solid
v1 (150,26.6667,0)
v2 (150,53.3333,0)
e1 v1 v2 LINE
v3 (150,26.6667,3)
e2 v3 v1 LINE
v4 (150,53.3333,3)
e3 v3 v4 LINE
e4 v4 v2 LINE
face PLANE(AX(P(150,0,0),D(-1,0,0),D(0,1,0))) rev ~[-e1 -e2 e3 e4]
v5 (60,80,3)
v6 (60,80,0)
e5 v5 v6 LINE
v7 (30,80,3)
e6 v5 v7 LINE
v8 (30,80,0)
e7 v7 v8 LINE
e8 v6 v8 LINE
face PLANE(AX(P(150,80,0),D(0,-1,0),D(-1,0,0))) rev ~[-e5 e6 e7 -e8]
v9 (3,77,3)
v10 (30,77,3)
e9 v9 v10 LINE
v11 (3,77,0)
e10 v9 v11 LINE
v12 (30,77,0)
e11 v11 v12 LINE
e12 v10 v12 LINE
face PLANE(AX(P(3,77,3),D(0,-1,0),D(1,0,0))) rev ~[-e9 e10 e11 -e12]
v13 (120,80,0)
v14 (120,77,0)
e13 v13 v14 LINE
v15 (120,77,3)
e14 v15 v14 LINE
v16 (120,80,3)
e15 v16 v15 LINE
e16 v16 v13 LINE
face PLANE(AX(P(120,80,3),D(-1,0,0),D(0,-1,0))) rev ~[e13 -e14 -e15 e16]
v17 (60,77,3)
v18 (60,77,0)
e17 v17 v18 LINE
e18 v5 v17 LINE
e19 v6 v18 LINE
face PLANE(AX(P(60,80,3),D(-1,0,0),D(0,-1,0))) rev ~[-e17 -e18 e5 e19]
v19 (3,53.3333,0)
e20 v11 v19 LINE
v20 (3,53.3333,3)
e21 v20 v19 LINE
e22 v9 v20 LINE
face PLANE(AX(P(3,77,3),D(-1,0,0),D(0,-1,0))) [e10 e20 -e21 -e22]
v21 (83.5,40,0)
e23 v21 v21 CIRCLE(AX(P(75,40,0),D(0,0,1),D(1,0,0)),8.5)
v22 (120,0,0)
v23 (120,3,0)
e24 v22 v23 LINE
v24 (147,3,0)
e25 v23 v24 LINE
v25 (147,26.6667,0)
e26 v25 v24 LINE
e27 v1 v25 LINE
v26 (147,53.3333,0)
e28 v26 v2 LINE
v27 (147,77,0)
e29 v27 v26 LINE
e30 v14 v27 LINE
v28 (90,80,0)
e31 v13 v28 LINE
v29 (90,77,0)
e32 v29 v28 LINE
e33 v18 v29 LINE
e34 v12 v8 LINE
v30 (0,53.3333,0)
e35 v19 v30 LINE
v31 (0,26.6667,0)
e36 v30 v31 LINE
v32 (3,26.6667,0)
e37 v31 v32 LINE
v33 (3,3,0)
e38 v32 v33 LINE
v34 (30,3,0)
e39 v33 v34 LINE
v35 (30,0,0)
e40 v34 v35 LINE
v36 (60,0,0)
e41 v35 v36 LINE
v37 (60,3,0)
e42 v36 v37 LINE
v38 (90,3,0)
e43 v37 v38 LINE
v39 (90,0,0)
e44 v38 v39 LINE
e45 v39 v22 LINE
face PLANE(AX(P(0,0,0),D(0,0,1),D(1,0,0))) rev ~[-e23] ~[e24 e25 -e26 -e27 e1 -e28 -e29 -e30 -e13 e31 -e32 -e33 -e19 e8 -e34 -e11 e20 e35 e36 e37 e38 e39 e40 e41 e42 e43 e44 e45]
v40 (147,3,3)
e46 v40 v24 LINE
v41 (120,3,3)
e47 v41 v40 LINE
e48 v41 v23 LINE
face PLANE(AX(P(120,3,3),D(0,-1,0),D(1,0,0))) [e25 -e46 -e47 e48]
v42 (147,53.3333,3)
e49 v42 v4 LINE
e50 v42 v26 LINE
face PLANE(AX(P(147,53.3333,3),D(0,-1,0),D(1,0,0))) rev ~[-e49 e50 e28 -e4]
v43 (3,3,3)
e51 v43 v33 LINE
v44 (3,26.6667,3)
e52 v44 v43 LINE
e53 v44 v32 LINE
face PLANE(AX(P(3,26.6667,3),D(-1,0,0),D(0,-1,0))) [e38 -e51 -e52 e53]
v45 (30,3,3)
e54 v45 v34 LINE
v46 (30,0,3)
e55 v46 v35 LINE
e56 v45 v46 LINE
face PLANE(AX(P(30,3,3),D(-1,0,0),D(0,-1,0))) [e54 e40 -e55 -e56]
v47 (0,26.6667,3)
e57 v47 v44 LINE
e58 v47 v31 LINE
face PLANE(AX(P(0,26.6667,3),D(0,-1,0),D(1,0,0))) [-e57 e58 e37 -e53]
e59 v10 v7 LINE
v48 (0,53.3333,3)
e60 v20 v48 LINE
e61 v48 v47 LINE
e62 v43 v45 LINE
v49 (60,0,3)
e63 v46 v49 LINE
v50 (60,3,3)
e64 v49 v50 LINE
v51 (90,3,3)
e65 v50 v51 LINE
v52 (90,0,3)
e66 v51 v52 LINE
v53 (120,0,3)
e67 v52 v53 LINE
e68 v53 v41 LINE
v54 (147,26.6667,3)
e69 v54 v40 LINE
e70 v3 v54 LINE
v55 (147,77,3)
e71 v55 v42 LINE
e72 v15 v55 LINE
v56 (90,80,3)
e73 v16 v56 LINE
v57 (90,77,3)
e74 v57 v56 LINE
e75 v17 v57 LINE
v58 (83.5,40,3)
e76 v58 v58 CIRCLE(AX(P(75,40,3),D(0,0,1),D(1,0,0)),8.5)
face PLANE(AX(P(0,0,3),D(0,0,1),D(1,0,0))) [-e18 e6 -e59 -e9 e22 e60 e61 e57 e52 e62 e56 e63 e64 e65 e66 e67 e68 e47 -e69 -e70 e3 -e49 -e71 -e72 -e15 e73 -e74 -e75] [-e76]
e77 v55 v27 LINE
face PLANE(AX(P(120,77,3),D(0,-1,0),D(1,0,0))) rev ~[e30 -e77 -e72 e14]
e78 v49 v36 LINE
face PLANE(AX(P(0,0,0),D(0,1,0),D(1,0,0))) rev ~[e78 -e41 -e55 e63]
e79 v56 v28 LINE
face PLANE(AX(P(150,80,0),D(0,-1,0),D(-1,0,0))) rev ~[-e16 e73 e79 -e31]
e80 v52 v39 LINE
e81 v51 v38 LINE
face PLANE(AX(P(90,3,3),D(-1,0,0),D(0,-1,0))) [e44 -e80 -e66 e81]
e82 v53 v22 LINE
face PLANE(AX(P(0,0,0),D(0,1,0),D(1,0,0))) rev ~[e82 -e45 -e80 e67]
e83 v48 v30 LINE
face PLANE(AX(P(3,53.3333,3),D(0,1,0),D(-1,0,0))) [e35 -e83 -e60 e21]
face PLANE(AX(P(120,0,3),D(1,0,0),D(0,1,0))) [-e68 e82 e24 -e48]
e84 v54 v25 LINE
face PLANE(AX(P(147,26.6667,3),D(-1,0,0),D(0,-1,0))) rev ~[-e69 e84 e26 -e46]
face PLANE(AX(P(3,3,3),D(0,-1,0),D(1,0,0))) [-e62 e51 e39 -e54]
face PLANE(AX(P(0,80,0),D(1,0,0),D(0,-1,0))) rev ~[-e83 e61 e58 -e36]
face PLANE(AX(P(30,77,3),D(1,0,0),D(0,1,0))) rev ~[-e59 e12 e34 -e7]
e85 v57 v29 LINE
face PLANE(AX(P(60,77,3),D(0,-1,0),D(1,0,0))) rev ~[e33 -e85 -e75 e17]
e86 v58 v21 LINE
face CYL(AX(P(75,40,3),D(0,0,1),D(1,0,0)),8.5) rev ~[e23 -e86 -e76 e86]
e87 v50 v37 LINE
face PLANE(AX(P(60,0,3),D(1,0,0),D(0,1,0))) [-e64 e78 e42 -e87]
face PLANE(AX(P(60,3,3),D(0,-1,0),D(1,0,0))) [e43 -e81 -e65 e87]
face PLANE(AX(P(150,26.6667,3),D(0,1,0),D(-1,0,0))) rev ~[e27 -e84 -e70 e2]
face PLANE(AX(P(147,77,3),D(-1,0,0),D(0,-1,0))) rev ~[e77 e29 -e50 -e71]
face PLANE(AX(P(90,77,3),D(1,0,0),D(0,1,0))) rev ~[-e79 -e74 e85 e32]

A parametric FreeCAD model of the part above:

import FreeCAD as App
import Part
import Sketcher
from FreeCAD import Vector
Q = App.Units.Quantity

doc = App.newDocument("Part")
body = doc.addObject("PartDesign::Body", "Body")

# Sketch on XY plane
sketch1 = body.newObject("Sketcher::SketchObject", "Sketch")
sketch1.AttachmentSupport = (doc.getObject("XY_Plane"), [""])
sketch1.MapMode = "FlatFace"
sketch1.addGeometry([
    Part.LineSegment(Vector(0, 80, 0), Vector(0, 0, 0)),
    Part.LineSegment(Vector(0, 0, 0), Vector(150, 0, 0)),
    Part.LineSegment(Vector(150, 0, 0), Vector(150, 80, 0)),
    Part.LineSegment(Vector(150, 80, 0), Vector(0, 80, 0)),
], False)
sketch1.addConstraint([
    Sketcher.Constraint("Coincident", 0, 2, 1, 1),
    Sketcher.Constraint("Coincident", 1, 2, 2, 1),
    Sketcher.Constraint("Coincident", 2, 2, 3, 1),
    Sketcher.Constraint("Coincident", 3, 2, 0, 1),
    Sketcher.Constraint("Vertical", 0),
    Sketcher.Constraint("Horizontal", 1),
    Sketcher.Constraint("Vertical", 2),
    Sketcher.Constraint("Horizontal", 3),
    Sketcher.Constraint("Coincident", 0, 2, -1, 1),
    Sketcher.Constraint("DistanceX", 1, 1, 1, 2, Q("5.9055 in")),
    Sketcher.Constraint("DistanceY", 0, 2, 0, 1, Q("3.1496 in")),
])
pad1 = body.newObject("PartDesign::Pad", "Pad")
pad1.Profile = sketch1
pad1.Length = Q("0.1181102 in")

# Sketch on XY plane
sketch2 = body.newObject("Sketcher::SketchObject", "Sketch001")
sketch2.AttachmentSupport = (doc.getObject("XY_Plane"), [""])
sketch2.MapMode = "FlatFace"
sketch2.AttachmentOffset = App.Placement(Vector(0, 0, 0.1181102 * 25.4), App.Rotation())
sketch2.addGeometry([
    Part.LineSegment(Vector(0, 80, 0), Vector(0, 53.3333, 0)),  # 0
    Part.LineSegment(Vector(0, 53.3333, 0), Vector(3, 53.3333, 0)),  # 1
    Part.LineSegment(Vector(3, 53.3333, 0), Vector(3, 77, 0)),  # 2
    Part.LineSegment(Vector(3, 77, 0), Vector(30, 77, 0)),  # 3
    Part.LineSegment(Vector(30, 77, 0), Vector(30, 80, 0)),  # 4
    Part.LineSegment(Vector(30, 80, 0), Vector(0, 80, 0)),  # 5
    Part.LineSegment(Vector(3, 26.6667, 0), Vector(0, 26.6667, 0)),  # 6
    Part.LineSegment(Vector(0, 26.6667, 0), Vector(0, 0, 0)),  # 7
    Part.LineSegment(Vector(0, 0, 0), Vector(30, 0, 0)),  # 8
    Part.LineSegment(Vector(30, 0, 0), Vector(30, 3, 0)),  # 9
    Part.LineSegment(Vector(30, 3, 0), Vector(3, 3, 0)),  # 10
    Part.LineSegment(Vector(3, 3, 0), Vector(3, 26.6667, 0)),  # 11
    Part.LineSegment(Vector(90, 80, 0), Vector(60, 80, 0)),  # 12
    Part.LineSegment(Vector(60, 80, 0), Vector(60, 77, 0)),  # 13
    Part.LineSegment(Vector(60, 77, 0), Vector(90, 77, 0)),  # 14
    Part.LineSegment(Vector(90, 77, 0), Vector(90, 80, 0)),  # 15
    Part.LineSegment(Vector(120, 80, 0), Vector(120, 77, 0)),  # 16
    Part.LineSegment(Vector(120, 77, 0), Vector(147, 77, 0)),  # 17
    Part.LineSegment(Vector(147, 77, 0), Vector(147, 53.3333, 0)),  # 18
    Part.LineSegment(Vector(147, 53.3333, 0), Vector(150, 53.3333, 0)),  # 19
    Part.LineSegment(Vector(150, 53.3333, 0), Vector(150, 80, 0)),  # 20
    Part.LineSegment(Vector(150, 80, 0), Vector(120, 80, 0)),  # 21
    Part.LineSegment(Vector(60, 3, 0), Vector(60, 0, 0)),  # 22
    Part.LineSegment(Vector(60, 0, 0), Vector(90, 0, 0)),  # 23
    Part.LineSegment(Vector(90, 0, 0), Vector(90, 3, 0)),  # 24
    Part.LineSegment(Vector(90, 3, 0), Vector(60, 3, 0)),  # 25
    Part.LineSegment(Vector(120, 3, 0), Vector(120, 0, 0)),  # 26
    Part.LineSegment(Vector(120, 0, 0), Vector(150, 0, 0)),  # 27
    Part.LineSegment(Vector(150, 0, 0), Vector(150, 26.6667, 0)),  # 28
    Part.LineSegment(Vector(150, 26.6667, 0), Vector(147, 26.6667, 0)),  # 29
    Part.LineSegment(Vector(147, 26.6667, 0), Vector(147, 3, 0)),  # 30
    Part.LineSegment(Vector(147, 3, 0), Vector(120, 3, 0)),  # 31
], False)
sketch2.addConstraint([
    Sketcher.Constraint("Coincident", 0, 2, 1, 1),
    Sketcher.Constraint("Coincident", 1, 2, 2, 1),
    Sketcher.Constraint("Coincident", 2, 2, 3, 1),
    Sketcher.Constraint("Coincident", 3, 2, 4, 1),
    Sketcher.Constraint("Coincident", 4, 2, 5, 1),
    Sketcher.Constraint("Coincident", 5, 2, 0, 1),
    Sketcher.Constraint("Coincident", 6, 2, 7, 1),
    Sketcher.Constraint("Coincident", 7, 2, 8, 1),
    Sketcher.Constraint("Coincident", 8, 2, 9, 1),
    Sketcher.Constraint("Coincident", 9, 2, 10, 1),
    Sketcher.Constraint("Coincident", 10, 2, 11, 1),
    Sketcher.Constraint("Coincident", 11, 2, 6, 1),
    Sketcher.Constraint("Coincident", 12, 2, 13, 1),
    Sketcher.Constraint("Coincident", 13, 2, 14, 1),
    Sketcher.Constraint("Coincident", 14, 2, 15, 1),
    Sketcher.Constraint("Coincident", 15, 2, 12, 1),
    Sketcher.Constraint("Coincident", 16, 2, 17, 1),
    Sketcher.Constraint("Coincident", 17, 2, 18, 1),
    Sketcher.Constraint("Coincident", 18, 2, 19, 1),
    Sketcher.Constraint("Coincident", 19, 2, 20, 1),
    Sketcher.Constraint("Coincident", 20, 2, 21, 1),
    Sketcher.Constraint("Coincident", 21, 2, 16, 1),
    Sketcher.Constraint("Coincident", 22, 2, 23, 1),
    Sketcher.Constraint("Coincident", 23, 2, 24, 1),
    Sketcher.Constraint("Coincident", 24, 2, 25, 1),
    Sketcher.Constraint("Coincident", 25, 2, 22, 1),
    Sketcher.Constraint("Coincident", 26, 2, 27, 1),
    Sketcher.Constraint("Coincident", 27, 2, 28, 1),
    Sketcher.Constraint("Coincident", 28, 2, 29, 1),
    Sketcher.Constraint("Coincident", 29, 2, 30, 1),
    Sketcher.Constraint("Coincident", 30, 2, 31, 1),
    Sketcher.Constraint("Coincident", 31, 2, 26, 1),
    Sketcher.Constraint("Vertical", 0),
    Sketcher.Constraint("Horizontal", 1),
    Sketcher.Constraint("Vertical", 2),
    Sketcher.Constraint("Horizontal", 3),
    Sketcher.Constraint("Vertical", 4),
    Sketcher.Constraint("Horizontal", 5),
    Sketcher.Constraint("Horizontal", 6),
    Sketcher.Constraint("Vertical", 7),
    Sketcher.Constraint("Horizontal", 8),
    Sketcher.Constraint("Vertical", 9),
    Sketcher.Constraint("Horizontal", 10),
    Sketcher.Constraint("Vertical", 11),
    Sketcher.Constraint("Horizontal", 12),
    Sketcher.Constraint("Vertical", 13),
    Sketcher.Constraint("Horizontal", 14),
    Sketcher.Constraint("Vertical", 15),
    Sketcher.Constraint("Vertical", 16),
    Sketcher.Constraint("Horizontal", 17),
    Sketcher.Constraint("Vertical", 18),
    Sketcher.Constraint("Horizontal", 19),
    Sketcher.Constraint("Vertical", 20),
    Sketcher.Constraint("Horizontal", 21),
    Sketcher.Constraint("Vertical", 22),
    Sketcher.Constraint("Horizontal", 23),
    Sketcher.Constraint("Vertical", 24),
    Sketcher.Constraint("Horizontal", 25),
    Sketcher.Constraint("Vertical", 26),
    Sketcher.Constraint("Horizontal", 27),
    Sketcher.Constraint("Vertical", 28),
    Sketcher.Constraint("Horizontal", 29),
    Sketcher.Constraint("Vertical", 30),
    Sketcher.Constraint("Horizontal", 31),
    Sketcher.Constraint("Coincident", 7, 2, -1, 1),
    Sketcher.Constraint("PointOnObject", 0, 2, -2),
    Sketcher.Constraint("PointOnObject", 22, 2, -1),
    Sketcher.Constraint("PointOnObject", 26, 2, -1),
    Sketcher.Constraint("Horizontal", 5, 2, 12, 2),
    Sketcher.Constraint("Horizontal", 3, 2, 13, 2),
    Sketcher.Constraint("Horizontal", 14, 2, 16, 2),
    Sketcher.Constraint("Horizontal", 1, 2, 18, 2),
    Sketcher.Constraint("Horizontal", 15, 2, 20, 2),
    Sketcher.Constraint("Horizontal", 10, 2, 24, 2),
    Sketcher.Constraint("Horizontal", 11, 2, 28, 2),
    Sketcher.Constraint("Horizontal", 25, 2, 30, 2),
    Sketcher.Constraint("Vertical", 4, 2, 8, 2),
    Sketcher.Constraint("Vertical", 2, 2, 10, 2),
    Sketcher.Constraint("Vertical", 13, 2, 22, 2),
    Sketcher.Constraint("Vertical", 15, 2, 23, 2),
    Sketcher.Constraint("Vertical", 21, 2, 26, 2),
    Sketcher.Constraint("Vertical", 20, 2, 27, 2),
    Sketcher.Constraint("Vertical", 18, 2, 29, 2),
    Sketcher.Constraint("Equal", 8, 12),
    Sketcher.Constraint("Equal", 10, 17),
    Sketcher.Constraint("Equal", 6, 19),
    Sketcher.Constraint("Equal", 29, 4),
    Sketcher.Constraint("Equal", 0, 7),
    Sketcher.Constraint("Equal", 4, 9),
    Sketcher.Constraint("DistanceX", 1, 1, 1, 2, Q("0.1181 in")),
    Sketcher.Constraint("DistanceX", 5, 2, 5, 1, Q("1.1811 in")),
    Sketcher.Constraint("DistanceY", 0, 2, 0, 1, Q("26.6667 mm")),
    Sketcher.Constraint("DistanceX", 4, 2, 12, 2, Q("1.1811 in")),
    Sketcher.Constraint("DistanceX", 14, 2, 16, 2, Q("1.1811 in")),
    Sketcher.Constraint("DistanceY", 6, 2, 0, 2, Q("26.6666 mm")),
])
pocket1 = body.newObject("PartDesign::Pocket", "Pocket")
pocket1.Profile = sketch2
pocket1.Length = Q("0.1181102 in")

# Sketch on XY plane
sketch3 = body.newObject("Sketcher::SketchObject", "Sketch002")
sketch3.AttachmentSupport = (doc.getObject("XY_Plane"), [""])
sketch3.MapMode = "FlatFace"
sketch3.AttachmentOffset = App.Placement(Vector(0, 0, 0.1181102 * 25.4), App.Rotation())
sketch3.addGeometry(Part.Circle(Vector(75, 40, 0), Vector(0, 0, 1), 8.5), False)
sketch3.addConstraint([
    Sketcher.Constraint("Diameter", 0, Q("0.6693 in")),
    Sketcher.Constraint("DistanceY", -1, 1, 0, 3, Q("1.5748 in")),
    Sketcher.Constraint("DistanceX", -1, 1, 0, 3, Q("75 mm")),
])
pocket2 = body.newObject("PartDesign::Pocket", "Pocket001")
pocket2.Profile = sketch3
pocket2.Length = Q("0.1181102 in")

doc.recompute()
